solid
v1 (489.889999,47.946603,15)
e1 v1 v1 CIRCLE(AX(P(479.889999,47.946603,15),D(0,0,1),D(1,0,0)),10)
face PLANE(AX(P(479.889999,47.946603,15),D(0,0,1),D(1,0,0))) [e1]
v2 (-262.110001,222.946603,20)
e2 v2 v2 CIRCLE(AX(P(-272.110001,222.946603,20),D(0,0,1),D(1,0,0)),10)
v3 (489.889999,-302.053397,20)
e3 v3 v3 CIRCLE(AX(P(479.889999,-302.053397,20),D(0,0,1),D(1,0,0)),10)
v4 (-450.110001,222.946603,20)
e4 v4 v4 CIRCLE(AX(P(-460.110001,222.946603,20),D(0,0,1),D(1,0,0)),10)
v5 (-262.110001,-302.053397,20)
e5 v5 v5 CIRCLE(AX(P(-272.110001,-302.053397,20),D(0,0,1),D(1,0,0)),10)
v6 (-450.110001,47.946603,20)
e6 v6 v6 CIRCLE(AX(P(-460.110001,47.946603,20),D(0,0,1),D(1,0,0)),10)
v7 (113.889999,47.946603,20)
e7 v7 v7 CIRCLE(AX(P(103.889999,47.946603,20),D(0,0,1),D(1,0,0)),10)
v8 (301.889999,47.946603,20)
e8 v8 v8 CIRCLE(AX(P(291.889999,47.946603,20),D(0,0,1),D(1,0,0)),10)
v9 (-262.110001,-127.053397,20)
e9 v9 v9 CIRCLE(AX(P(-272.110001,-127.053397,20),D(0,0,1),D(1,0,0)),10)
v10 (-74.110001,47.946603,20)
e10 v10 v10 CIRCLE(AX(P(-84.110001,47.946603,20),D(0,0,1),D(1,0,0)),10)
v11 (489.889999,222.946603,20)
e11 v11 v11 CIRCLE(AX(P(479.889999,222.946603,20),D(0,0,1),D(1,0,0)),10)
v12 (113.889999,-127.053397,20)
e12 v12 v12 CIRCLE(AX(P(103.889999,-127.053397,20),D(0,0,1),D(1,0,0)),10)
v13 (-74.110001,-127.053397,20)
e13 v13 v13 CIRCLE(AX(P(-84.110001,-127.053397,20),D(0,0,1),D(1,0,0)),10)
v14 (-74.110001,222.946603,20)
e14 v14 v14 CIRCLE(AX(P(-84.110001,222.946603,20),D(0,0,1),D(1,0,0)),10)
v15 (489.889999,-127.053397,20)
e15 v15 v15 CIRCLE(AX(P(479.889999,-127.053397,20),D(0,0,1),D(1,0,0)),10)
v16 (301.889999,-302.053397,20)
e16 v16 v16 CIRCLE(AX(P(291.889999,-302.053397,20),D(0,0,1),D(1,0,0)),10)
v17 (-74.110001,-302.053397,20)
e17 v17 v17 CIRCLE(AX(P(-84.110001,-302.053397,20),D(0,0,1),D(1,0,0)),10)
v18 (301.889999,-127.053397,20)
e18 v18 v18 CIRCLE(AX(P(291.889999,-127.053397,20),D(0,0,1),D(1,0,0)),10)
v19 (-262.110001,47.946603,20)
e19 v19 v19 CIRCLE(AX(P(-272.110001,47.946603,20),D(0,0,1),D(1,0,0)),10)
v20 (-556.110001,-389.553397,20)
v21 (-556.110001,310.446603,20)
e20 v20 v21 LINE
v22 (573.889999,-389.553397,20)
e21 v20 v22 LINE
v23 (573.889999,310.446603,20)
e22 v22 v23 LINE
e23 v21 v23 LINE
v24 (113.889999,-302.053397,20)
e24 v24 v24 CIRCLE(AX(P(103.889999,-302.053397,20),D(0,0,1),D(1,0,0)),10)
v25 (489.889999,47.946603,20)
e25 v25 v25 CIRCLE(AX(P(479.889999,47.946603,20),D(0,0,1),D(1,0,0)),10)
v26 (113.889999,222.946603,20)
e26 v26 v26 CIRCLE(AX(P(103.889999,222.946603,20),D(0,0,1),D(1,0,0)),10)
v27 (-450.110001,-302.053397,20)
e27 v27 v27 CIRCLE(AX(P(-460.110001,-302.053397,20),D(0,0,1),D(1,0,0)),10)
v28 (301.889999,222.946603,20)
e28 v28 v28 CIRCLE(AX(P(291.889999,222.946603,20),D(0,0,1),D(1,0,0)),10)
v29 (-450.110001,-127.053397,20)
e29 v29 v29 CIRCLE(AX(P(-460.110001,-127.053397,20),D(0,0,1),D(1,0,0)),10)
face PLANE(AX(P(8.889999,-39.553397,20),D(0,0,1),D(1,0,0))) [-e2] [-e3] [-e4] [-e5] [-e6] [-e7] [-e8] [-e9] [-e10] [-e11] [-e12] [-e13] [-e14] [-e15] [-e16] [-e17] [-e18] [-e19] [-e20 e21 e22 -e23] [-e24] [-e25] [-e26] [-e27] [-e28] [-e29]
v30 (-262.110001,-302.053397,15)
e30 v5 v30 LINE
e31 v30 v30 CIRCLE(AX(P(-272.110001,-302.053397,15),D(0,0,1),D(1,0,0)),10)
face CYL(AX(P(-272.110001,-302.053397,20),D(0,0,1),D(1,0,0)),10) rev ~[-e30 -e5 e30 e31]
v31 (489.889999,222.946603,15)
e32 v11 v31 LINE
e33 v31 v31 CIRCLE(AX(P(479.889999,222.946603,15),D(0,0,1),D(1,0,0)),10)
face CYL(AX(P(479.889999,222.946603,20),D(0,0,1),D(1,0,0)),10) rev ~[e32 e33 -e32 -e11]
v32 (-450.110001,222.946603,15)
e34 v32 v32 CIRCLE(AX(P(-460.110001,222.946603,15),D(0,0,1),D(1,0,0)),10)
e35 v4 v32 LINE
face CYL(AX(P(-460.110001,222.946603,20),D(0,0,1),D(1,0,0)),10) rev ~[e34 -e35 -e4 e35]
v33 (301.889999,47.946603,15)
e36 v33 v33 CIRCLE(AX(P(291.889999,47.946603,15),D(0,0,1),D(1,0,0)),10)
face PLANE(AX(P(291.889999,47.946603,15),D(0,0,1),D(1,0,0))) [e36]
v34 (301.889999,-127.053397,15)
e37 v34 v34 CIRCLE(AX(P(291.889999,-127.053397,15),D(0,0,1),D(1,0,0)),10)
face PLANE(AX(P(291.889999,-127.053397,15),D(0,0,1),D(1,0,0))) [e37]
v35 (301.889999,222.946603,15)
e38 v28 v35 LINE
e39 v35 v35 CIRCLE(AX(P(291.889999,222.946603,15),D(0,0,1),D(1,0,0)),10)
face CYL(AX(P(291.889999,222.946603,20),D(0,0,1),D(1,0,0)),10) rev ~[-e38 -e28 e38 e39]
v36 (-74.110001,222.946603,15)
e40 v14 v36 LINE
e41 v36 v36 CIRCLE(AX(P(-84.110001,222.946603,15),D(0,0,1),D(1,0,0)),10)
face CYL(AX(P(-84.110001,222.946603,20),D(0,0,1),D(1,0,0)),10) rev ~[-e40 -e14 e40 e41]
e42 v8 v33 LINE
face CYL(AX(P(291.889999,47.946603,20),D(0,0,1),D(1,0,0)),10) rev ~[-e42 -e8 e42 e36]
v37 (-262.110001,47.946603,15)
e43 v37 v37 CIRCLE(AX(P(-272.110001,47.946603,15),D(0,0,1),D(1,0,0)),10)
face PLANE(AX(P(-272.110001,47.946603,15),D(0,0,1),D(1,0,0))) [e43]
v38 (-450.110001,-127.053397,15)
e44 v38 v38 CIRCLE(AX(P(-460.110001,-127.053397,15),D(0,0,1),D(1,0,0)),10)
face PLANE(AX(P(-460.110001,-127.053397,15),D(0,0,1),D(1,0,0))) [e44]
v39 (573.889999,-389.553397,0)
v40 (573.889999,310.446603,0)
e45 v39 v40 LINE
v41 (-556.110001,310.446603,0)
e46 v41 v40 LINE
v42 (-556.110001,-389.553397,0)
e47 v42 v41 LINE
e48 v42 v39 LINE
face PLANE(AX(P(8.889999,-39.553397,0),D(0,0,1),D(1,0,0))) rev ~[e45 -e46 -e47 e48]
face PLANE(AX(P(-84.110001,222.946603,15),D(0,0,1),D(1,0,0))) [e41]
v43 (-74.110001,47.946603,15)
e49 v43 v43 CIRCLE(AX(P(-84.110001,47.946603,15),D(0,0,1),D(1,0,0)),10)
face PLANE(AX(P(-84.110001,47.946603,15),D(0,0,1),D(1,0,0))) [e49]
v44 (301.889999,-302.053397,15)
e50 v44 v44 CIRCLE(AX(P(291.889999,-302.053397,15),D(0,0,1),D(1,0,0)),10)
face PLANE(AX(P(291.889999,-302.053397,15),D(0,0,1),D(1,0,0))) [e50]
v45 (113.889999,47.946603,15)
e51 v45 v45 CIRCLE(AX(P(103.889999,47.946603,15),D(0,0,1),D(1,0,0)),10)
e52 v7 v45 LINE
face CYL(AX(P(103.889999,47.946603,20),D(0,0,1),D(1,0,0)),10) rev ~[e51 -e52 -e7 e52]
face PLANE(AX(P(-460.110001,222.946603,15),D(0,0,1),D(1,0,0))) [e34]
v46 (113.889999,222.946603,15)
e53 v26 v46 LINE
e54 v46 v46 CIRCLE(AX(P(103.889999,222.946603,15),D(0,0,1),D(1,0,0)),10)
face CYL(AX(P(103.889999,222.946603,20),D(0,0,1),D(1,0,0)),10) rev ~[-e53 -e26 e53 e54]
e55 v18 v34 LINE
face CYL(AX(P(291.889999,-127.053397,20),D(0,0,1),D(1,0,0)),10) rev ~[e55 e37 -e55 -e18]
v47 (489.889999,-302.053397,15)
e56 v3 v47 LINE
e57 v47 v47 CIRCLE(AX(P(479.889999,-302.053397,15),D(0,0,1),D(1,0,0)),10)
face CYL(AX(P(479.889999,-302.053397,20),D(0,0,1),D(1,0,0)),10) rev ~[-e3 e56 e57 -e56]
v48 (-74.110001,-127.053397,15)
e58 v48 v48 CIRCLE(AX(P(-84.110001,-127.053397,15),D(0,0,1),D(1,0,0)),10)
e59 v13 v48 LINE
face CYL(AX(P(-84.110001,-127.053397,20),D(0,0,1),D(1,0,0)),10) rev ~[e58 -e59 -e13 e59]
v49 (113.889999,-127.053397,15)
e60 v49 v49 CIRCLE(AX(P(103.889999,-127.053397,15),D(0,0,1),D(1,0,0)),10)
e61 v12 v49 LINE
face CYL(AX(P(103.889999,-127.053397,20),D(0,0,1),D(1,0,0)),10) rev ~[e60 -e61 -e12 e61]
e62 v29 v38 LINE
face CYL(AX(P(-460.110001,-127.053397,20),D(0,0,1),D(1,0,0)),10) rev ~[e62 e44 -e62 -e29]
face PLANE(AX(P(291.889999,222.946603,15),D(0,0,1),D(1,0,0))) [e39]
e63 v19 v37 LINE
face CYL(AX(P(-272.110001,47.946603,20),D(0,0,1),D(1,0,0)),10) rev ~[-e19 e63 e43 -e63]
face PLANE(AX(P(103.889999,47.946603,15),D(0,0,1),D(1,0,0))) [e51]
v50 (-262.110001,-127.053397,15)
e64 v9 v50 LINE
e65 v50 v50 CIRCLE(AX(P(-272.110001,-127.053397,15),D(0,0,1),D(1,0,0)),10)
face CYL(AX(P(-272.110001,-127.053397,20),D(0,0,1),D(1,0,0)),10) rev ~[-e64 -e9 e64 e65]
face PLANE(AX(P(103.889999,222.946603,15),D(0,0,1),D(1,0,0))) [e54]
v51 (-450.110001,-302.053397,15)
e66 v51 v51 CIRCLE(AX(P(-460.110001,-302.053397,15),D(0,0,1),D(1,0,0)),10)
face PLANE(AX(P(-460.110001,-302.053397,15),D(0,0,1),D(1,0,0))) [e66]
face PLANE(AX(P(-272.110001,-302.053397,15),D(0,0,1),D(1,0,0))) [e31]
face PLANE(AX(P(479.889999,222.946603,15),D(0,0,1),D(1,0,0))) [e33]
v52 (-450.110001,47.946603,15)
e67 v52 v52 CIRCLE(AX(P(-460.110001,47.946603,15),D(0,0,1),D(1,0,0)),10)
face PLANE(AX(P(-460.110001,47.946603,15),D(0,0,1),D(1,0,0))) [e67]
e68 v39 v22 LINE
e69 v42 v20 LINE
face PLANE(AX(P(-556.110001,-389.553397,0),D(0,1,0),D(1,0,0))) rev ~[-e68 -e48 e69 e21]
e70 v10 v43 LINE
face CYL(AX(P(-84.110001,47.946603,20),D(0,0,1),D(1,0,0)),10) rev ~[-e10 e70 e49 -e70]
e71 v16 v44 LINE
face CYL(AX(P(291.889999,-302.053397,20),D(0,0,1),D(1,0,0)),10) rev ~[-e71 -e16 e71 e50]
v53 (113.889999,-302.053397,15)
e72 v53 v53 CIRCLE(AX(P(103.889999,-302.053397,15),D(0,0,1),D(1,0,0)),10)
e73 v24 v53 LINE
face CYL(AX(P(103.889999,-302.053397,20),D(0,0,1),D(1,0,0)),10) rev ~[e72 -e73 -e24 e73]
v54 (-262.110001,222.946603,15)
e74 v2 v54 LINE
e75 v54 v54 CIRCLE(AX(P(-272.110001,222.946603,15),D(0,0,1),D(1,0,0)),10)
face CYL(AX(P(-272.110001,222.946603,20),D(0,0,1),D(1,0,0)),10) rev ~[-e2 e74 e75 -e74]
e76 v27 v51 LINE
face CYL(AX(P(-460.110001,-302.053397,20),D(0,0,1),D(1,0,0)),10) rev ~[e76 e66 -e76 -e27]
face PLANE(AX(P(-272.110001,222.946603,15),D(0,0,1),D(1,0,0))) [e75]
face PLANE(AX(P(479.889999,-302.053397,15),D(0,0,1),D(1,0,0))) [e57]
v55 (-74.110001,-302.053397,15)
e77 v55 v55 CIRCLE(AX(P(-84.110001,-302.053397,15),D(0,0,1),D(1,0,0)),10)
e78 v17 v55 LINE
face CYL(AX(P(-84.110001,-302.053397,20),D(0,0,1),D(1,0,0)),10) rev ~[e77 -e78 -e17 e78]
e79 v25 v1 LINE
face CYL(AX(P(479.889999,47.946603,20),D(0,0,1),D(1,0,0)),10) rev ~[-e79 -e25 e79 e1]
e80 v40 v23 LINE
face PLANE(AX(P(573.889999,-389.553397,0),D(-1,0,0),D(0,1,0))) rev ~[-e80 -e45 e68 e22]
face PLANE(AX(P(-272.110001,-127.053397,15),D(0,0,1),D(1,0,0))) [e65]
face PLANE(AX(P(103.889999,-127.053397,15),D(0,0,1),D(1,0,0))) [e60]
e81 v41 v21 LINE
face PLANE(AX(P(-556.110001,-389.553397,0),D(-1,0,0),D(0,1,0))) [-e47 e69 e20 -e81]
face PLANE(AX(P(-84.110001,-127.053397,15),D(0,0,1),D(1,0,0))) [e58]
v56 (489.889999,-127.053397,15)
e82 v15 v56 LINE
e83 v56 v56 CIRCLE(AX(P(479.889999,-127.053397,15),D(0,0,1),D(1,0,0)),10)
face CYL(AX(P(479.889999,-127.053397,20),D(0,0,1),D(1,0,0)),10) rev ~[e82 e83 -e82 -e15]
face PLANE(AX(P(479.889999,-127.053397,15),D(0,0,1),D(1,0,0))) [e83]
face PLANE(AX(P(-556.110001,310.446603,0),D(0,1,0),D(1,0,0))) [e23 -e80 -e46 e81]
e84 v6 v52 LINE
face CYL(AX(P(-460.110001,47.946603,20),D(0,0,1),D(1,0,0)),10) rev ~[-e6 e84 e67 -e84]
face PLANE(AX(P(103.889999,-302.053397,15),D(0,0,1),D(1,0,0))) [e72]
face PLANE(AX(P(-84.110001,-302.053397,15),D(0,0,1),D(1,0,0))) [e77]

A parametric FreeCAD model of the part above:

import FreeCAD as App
import Part
import Sketcher
from FreeCAD import Vector


def add_polygon(sketch, points):
    """Adds a closed chain of lines whose ends are joined by coincident constraints."""
    first, n = sketch.GeometryCount, len(points)
    for a, b in zip(points, points[1:] + points[:1]):
        sketch.addGeometry(Part.LineSegment(App.Vector(*a, 0), App.Vector(*b, 0)), False)
    for i in range(n):
        sketch.addConstraint(Sketcher.Constraint("Coincident", first + i, 2, first + (i + 1) % n, 1))

doc = App.newDocument("Part")
body = doc.addObject("PartDesign::Body", "Body")

# Sketch on XY plane
sketch1 = doc.addObject("Sketcher::SketchObject", "Sketch")
body.addObject(sketch1)
sketch1.AttachmentSupport = (doc.XY_Plane, [""])
sketch1.MapMode = "FlatFace"
add_polygon(sketch1, [(-556, 310), (-556, -390), (574, -390), (574, 310)])  # lines 0-3
sketch1.addConstraint(Sketcher.Constraint("Vertical", 0))
sketch1.addConstraint(Sketcher.Constraint("Horizontal", 1))
sketch1.addConstraint(Sketcher.Constraint("Vertical", 2))
sketch1.addConstraint(Sketcher.Constraint("Horizontal", 3))
sketch1.addConstraint(Sketcher.Constraint("DistanceX", 1, 1, 1, 2, 1130.0))
sketch1.addConstraint(Sketcher.Constraint("DistanceY", 0, 2, 0, 1, 700.0))
sketch1.addConstraint(Sketcher.Constraint("DistanceX", 0, 2, -1, 1, 556.110001))
sketch1.addConstraint(Sketcher.Constraint("DistanceY", 0, 2, -1, 1, 389.553397))
pad1 = doc.addObject("PartDesign::Pad", "Pad")
body.addObject(pad1)
pad1.Profile = sketch1
pad1.Length = 20

# Sketch on XY plane
sketch2 = doc.addObject("Sketcher::SketchObject", "Sketch001")
body.addObject(sketch2)
sketch2.AttachmentSupport = (doc.XY_Plane, [""])
sketch2.MapMode = "FlatFace"
sketch2.AttachmentOffset = App.Placement(Vector(0, 0, 20), App.Rotation())
sketch2.addGeometry(Part.Circle(Vector(480, 223, 0), Vector(0, 0, 1), 10), False)
sketch2.addConstraint(Sketcher.Constraint("Diameter", 0, 20.0))
sketch2.addConstraint(Sketcher.Constraint("DistanceX", -1, 1, 0, 3, 479.889999))
sketch2.addConstraint(Sketcher.Constraint("DistanceY", -1, 1, 0, 3, 222.946603))
pocket1 = doc.addObject("PartDesign::Pocket", "Pocket")
body.addObject(pocket1)
pocket1.Profile = sketch2
pocket1.Length = 5

# Sketch on XY plane
sketch3 = doc.addObject("Sketcher::SketchObject", "Sketch002")
body.addObject(sketch3)
sketch3.AttachmentSupport = (doc.XY_Plane, [""])
sketch3.MapMode = "FlatFace"
sketch3.AttachmentOffset = App.Placement(Vector(0, 0, 20), App.Rotation())
sketch3.addGeometry(Part.Circle(Vector(480, 223, 0), Vector(0, 0, 1), 10), False)
sketch3.addGeometry(Part.Circle(Vector(292, 223, 0), Vector(0, 0, 1), 10), False)
sketch3.addGeometry(Part.Circle(Vector(104, 223, 0), Vector(0, 0, 1), 10), False)
sketch3.addGeometry(Part.Circle(Vector(-84, 223, 0), Vector(0, 0, 1), 10), False)
sketch3.addGeometry(Part.Circle(Vector(-272, 223, 0), Vector(0, 0, 1), 10), False)
sketch3.addGeometry(Part.Circle(Vector(-460, 223, 0), Vector(0, 0, 1), 10), False)
sketch3.addGeometry(Part.Circle(Vector(-460, 48, 0), Vector(0, 0, 1), 10), False)
sketch3.addGeometry(Part.Circle(Vector(-460, -127, 0), Vector(0, 0, 1), 10), False)
sketch3.addGeometry(Part.Circle(Vector(-460, -302, 0), Vector(0, 0, 1), 10), False)
sketch3.addGeometry(Part.Circle(Vector(-272, -302, 0), Vector(0, 0, 1), 10), False)
sketch3.addGeometry(Part.Circle(Vector(-84, -302, 0), Vector(0, 0, 1), 10), False)
sketch3.addGeometry(Part.Circle(Vector(104, -302, 0), Vector(0, 0, 1), 10), False)
sketch3.addGeometry(Part.Circle(Vector(292, -302, 0), Vector(0, 0, 1), 10), False)
sketch3.addGeometry(Part.Circle(Vector(480, -302, 0), Vector(0, 0, 1), 10), False)
sketch3.addGeometry(Part.Circle(Vector(480, -127, 0), Vector(0, 0, 1), 10), False)
sketch3.addGeometry(Part.Circle(Vector(480, 48, 0), Vector(0, 0, 1), 10), False)
sketch3.addGeometry(Part.Circle(Vector(292, 48, 0), Vector(0, 0, 1), 10), False)
sketch3.addGeometry(Part.Circle(Vector(292, -127, 0), Vector(0, 0, 1), 10), False)
sketch3.addGeometry(Part.Circle(Vector(104, -127, 0), Vector(0, 0, 1), 10), False)
sketch3.addGeometry(Part.Circle(Vector(-84, -127, 0), Vector(0, 0, 1), 10), False)
sketch3.addGeometry(Part.Circle(Vector(-272, -127, 0), Vector(0, 0, 1), 10), False)
sketch3.addGeometry(Part.Circle(Vector(-272, 48, 0), Vector(0, 0, 1), 10), False)
sketch3.addGeometry(Part.Circle(Vector(-84, 48, 0), Vector(0, 0, 1), 10), False)
sketch3.addGeometry(Part.Circle(Vector(104, 48, 0), Vector(0, 0, 1), 10), False)
sketch3.addConstraint(Sketcher.Constraint("Equal", 0, 1))
sketch3.addConstraint(Sketcher.Constraint("Equal", 1, 2))
sketch3.addConstraint(Sketcher.Constraint("Equal", 2, 3))
sketch3.addConstraint(Sketcher.Constraint("Equal", 3, 4))
sketch3.addConstraint(Sketcher.Constraint("Equal", 4, 5))
sketch3.addConstraint(Sketcher.Constraint("Equal", 5, 6))
sketch3.addConstraint(Sketcher.Constraint("Equal", 6, 7))
sketch3.addConstraint(Sketcher.Constraint("Equal", 7, 8))
sketch3.addConstraint(Sketcher.Constraint("Equal", 8, 9))
sketch3.addConstraint(Sketcher.Constraint("Equal", 9, 10))
sketch3.addConstraint(Sketcher.Constraint("Equal", 10, 11))
sketch3.addConstraint(Sketcher.Constraint("Equal", 11, 12))
sketch3.addConstraint(Sketcher.Constraint("Equal", 12, 13))
sketch3.addConstraint(Sketcher.Constraint("Equal", 13, 14))
sketch3.addConstraint(Sketcher.Constraint("Equal", 14, 15))
sketch3.addConstraint(Sketcher.Constraint("Equal", 15, 16))
sketch3.addConstraint(Sketcher.Constraint("Equal", 16, 17))
sketch3.addConstraint(Sketcher.Constraint("Equal", 17, 18))
sketch3.addConstraint(Sketcher.Constraint("Equal", 18, 19))
sketch3.addConstraint(Sketcher.Constraint("Equal", 19, 20))
sketch3.addConstraint(Sketcher.Constraint("Equal", 20, 21))
sketch3.addConstraint(Sketcher.Constraint("Equal", 21, 22))
sketch3.addConstraint(Sketcher.Constraint("Equal", 22, 23))
sketch3.addConstraint(Sketcher.Constraint("Horizontal", 0, 3, 1, 3))
sketch3.addConstraint(Sketcher.Constraint("Horizontal", 1, 3, 2, 3))
sketch3.addConstraint(Sketcher.Constraint("Horizontal", 2, 3, 3, 3))
sketch3.addConstraint(Sketcher.Constraint("Horizontal", 3, 3, 4, 3))
sketch3.addConstraint(Sketcher.Constraint("Horizontal", 4, 3, 5, 3))
sketch3.addConstraint(Sketcher.Constraint("Horizontal", 8, 3, 9, 3))
sketch3.addConstraint(Sketcher.Constraint("Horizontal", 9, 3, 10, 3))
sketch3.addConstraint(Sketcher.Constraint("Horizontal", 10, 3, 11, 3))
sketch3.addConstraint(Sketcher.Constraint("Horizontal", 11, 3, 12, 3))
sketch3.addConstraint(Sketcher.Constraint("Horizontal", 12, 3, 13, 3))
sketch3.addConstraint(Sketcher.Constraint("Horizontal", 7, 3, 14, 3))
sketch3.addConstraint(Sketcher.Constraint("Horizontal", 6, 3, 15, 3))
sketch3.addConstraint(Sketcher.Constraint("Horizontal", 15, 3, 16, 3))
sketch3.addConstraint(Sketcher.Constraint("Horizontal", 14, 3, 17, 3))
sketch3.addConstraint(Sketcher.Constraint("Horizontal", 17, 3, 18, 3))
sketch3.addConstraint(Sketcher.Constraint("Horizontal", 18, 3, 19, 3))
sketch3.addConstraint(Sketcher.Constraint("Horizontal", 19, 3, 20, 3))
sketch3.addConstraint(Sketcher.Constraint("Horizontal", 16, 3, 21, 3))
sketch3.addConstraint(Sketcher.Constraint("Horizontal", 21, 3, 22, 3))
sketch3.addConstraint(Sketcher.Constraint("Horizontal", 22, 3, 23, 3))
sketch3.addConstraint(Sketcher.Constraint("Vertical", 5, 3, 6, 3))
sketch3.addConstraint(Sketcher.Constraint("Vertical", 6, 3, 7, 3))
sketch3.addConstraint(Sketcher.Constraint("Vertical", 7, 3, 8, 3))
sketch3.addConstraint(Sketcher.Constraint("Vertical", 4, 3, 9, 3))
sketch3.addConstraint(Sketcher.Constraint("Vertical", 3, 3, 10, 3))
sketch3.addConstraint(Sketcher.Constraint("Vertical", 2, 3, 11, 3))
sketch3.addConstraint(Sketcher.Constraint("Vertical", 1, 3, 12, 3))
sketch3.addConstraint(Sketcher.Constraint("Vertical", 0, 3, 13, 3))
sketch3.addConstraint(Sketcher.Constraint("Vertical", 13, 3, 14, 3))
sketch3.addConstraint(Sketcher.Constraint("Vertical", 14, 3, 15, 3))
sketch3.addConstraint(Sketcher.Constraint("Vertical", 12, 3, 16, 3))
sketch3.addConstraint(Sketcher.Constraint("Vertical", 16, 3, 17, 3))
sketch3.addConstraint(Sketcher.Constraint("Vertical", 11, 3, 18, 3))
sketch3.addConstraint(Sketcher.Constraint("Vertical", 10, 3, 19, 3))
sketch3.addConstraint(Sketcher.Constraint("Vertical", 9, 3, 20, 3))
sketch3.addConstraint(Sketcher.Constraint("Vertical", 20, 3, 21, 3))
sketch3.addConstraint(Sketcher.Constraint("Vertical", 19, 3, 22, 3))
sketch3.addConstraint(Sketcher.Constraint("Vertical", 18, 3, 23, 3))
sketch3.addConstraint(Sketcher.Constraint("Diameter", 0, 20.0))
sketch3.addConstraint(Sketcher.Constraint("DistanceX", 1, 3, 0, 3, 188.0))
sketch3.addConstraint(Sketcher.Constraint("DistanceX", 2, 3, 1, 3, 188.0))
sketch3.addConstraint(Sketcher.Constraint("DistanceX", 3, 3, 2, 3, 188.0))
sketch3.addConstraint(Sketcher.Constraint("DistanceX", 4, 3, 3, 3, 188.0))
sketch3.addConstraint(Sketcher.Constraint("DistanceX", 5, 3, 4, 3, 188.0))
sketch3.addConstraint(Sketcher.Constraint("DistanceY", 6, 3, 5, 3, 175.0))
sketch3.addConstraint(Sketcher.Constraint("DistanceY", 7, 3, 6, 3, 175.0))
sketch3.addConstraint(Sketcher.Constraint("DistanceY", 8, 3, 7, 3, 175.0))
sketch3.addConstraint(Sketcher.Constraint("DistanceX", -1, 1, 0, 3, 479.889999))
sketch3.addConstraint(Sketcher.Constraint("DistanceY", -1, 1, 0, 3, 222.946603))
pocket2 = doc.addObject("PartDesign::Pocket", "Pocket001")
body.addObject(pocket2)
pocket2.Profile = sketch3
pocket2.Length = 5

doc.recompute()
